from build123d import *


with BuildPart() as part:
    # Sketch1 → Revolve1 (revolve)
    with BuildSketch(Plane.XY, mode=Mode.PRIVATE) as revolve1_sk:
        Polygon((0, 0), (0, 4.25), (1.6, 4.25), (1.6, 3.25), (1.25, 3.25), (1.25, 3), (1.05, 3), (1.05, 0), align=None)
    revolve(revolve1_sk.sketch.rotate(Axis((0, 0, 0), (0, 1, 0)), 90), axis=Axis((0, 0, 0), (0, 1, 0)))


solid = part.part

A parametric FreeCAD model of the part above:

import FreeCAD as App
import Part
import Sketcher
Q = App.Units.Quantity

doc = App.newDocument("Part")
body = doc.addObject("PartDesign::Body", "Body")

sketch1 = doc.addObject("Sketcher::SketchObject", "Sketch")
body.addObject(sketch1)
sketch1.AttachmentSupport = (doc.XY_Plane, [""])
sketch1.MapMode = "FlatFace"
sketch1.addGeometry(Part.LineSegment(App.Vector(0, 4.25, 0), App.Vector(0, 0, 0)), False)
sketch1.addGeometry(Part.LineSegment(App.Vector(0, 0, 0), App.Vector(1.05, 0, 0)), False)
sketch1.addGeometry(Part.LineSegment(App.Vector(1.05, 0, 0), App.Vector(1.05, 3, 0)), False)
sketch1.addGeometry(Part.LineSegment(App.Vector(1.05, 3, 0), App.Vector(1.25, 3, 0)), False)
sketch1.addGeometry(Part.LineSegment(App.Vector(1.25, 3, 0), App.Vector(1.25, 3.25, 0)), False)
sketch1.addGeometry(Part.LineSegment(App.Vector(1.25, 3.25, 0), App.Vector(1.6, 3.25, 0)), False)
sketch1.addGeometry(Part.LineSegment(App.Vector(1.6, 3.25, 0), App.Vector(1.6, 4.25, 0)), False)
sketch1.addGeometry(Part.LineSegment(App.Vector(1.6, 4.25, 0), App.Vector(0, 4.25, 0)), False)
sketch1.addConstraint(Sketcher.Constraint("Coincident", 0, 2, 1, 1))
sketch1.addConstraint(Sketcher.Constraint("Coincident", 1, 2, 2, 1))
sketch1.addConstraint(Sketcher.Constraint("Coincident", 2, 2, 3, 1))
sketch1.addConstraint(Sketcher.Constraint("Coincident", 3, 2, 4, 1))
sketch1.addConstraint(Sketcher.Constraint("Coincident", 4, 2, 5, 1))
sketch1.addConstraint(Sketcher.Constraint("Coincident", 5, 2, 6, 1))
sketch1.addConstraint(Sketcher.Constraint("Coincident", 6, 2, 7, 1))
sketch1.addConstraint(Sketcher.Constraint("Coincident", 7, 2, 0, 1))
sketch1.addConstraint(Sketcher.Constraint("Vertical", 0))
sketch1.addConstraint(Sketcher.Constraint("Horizontal", 1))
sketch1.addConstraint(Sketcher.Constraint("Vertical", 2))
sketch1.addConstraint(Sketcher.Constraint("Horizontal", 3))
sketch1.addConstraint(Sketcher.Constraint("Vertical", 4))
sketch1.addConstraint(Sketcher.Constraint("Horizontal", 5))
sketch1.addConstraint(Sketcher.Constraint("Vertical", 6))
sketch1.addConstraint(Sketcher.Constraint("Horizontal", 7))
sketch1.addConstraint(Sketcher.Constraint("Coincident", 0, 2, -1, 1))
sketch1.addConstraint(Sketcher.Constraint("DistanceY", 2, 1, 2, 2, Q("3 mm")))
sketch1.addConstraint(Sketcher.Constraint("DistanceY", 6, 1, 6, 2, Q("1 mm")))
sketch1.addConstraint(Sketcher.Constraint("DistanceX", 3, 1, 3, 2, Q("0.2 mm")))
sketch1.addConstraint(Sketcher.Constraint("DistanceX", 7, 2, 7, 1, Q("1.6 mm")))
sketch1.addConstraint(Sketcher.Constraint("DistanceX", 1, 1, 1, 2, Q("1.05 mm")))
sketch1.addConstraint(Sketcher.Constraint("DistanceY", 0, 2, 0, 1, Q("4.25 mm")))
revolution = doc.addObject("PartDesign::Revolution", "Revolution")
body.addObject(revolution)
revolution.Profile = sketch1
revolution.ReferenceAxis = (sketch1, ["V_Axis"])
revolution.Angle = 360

doc.recompute()
